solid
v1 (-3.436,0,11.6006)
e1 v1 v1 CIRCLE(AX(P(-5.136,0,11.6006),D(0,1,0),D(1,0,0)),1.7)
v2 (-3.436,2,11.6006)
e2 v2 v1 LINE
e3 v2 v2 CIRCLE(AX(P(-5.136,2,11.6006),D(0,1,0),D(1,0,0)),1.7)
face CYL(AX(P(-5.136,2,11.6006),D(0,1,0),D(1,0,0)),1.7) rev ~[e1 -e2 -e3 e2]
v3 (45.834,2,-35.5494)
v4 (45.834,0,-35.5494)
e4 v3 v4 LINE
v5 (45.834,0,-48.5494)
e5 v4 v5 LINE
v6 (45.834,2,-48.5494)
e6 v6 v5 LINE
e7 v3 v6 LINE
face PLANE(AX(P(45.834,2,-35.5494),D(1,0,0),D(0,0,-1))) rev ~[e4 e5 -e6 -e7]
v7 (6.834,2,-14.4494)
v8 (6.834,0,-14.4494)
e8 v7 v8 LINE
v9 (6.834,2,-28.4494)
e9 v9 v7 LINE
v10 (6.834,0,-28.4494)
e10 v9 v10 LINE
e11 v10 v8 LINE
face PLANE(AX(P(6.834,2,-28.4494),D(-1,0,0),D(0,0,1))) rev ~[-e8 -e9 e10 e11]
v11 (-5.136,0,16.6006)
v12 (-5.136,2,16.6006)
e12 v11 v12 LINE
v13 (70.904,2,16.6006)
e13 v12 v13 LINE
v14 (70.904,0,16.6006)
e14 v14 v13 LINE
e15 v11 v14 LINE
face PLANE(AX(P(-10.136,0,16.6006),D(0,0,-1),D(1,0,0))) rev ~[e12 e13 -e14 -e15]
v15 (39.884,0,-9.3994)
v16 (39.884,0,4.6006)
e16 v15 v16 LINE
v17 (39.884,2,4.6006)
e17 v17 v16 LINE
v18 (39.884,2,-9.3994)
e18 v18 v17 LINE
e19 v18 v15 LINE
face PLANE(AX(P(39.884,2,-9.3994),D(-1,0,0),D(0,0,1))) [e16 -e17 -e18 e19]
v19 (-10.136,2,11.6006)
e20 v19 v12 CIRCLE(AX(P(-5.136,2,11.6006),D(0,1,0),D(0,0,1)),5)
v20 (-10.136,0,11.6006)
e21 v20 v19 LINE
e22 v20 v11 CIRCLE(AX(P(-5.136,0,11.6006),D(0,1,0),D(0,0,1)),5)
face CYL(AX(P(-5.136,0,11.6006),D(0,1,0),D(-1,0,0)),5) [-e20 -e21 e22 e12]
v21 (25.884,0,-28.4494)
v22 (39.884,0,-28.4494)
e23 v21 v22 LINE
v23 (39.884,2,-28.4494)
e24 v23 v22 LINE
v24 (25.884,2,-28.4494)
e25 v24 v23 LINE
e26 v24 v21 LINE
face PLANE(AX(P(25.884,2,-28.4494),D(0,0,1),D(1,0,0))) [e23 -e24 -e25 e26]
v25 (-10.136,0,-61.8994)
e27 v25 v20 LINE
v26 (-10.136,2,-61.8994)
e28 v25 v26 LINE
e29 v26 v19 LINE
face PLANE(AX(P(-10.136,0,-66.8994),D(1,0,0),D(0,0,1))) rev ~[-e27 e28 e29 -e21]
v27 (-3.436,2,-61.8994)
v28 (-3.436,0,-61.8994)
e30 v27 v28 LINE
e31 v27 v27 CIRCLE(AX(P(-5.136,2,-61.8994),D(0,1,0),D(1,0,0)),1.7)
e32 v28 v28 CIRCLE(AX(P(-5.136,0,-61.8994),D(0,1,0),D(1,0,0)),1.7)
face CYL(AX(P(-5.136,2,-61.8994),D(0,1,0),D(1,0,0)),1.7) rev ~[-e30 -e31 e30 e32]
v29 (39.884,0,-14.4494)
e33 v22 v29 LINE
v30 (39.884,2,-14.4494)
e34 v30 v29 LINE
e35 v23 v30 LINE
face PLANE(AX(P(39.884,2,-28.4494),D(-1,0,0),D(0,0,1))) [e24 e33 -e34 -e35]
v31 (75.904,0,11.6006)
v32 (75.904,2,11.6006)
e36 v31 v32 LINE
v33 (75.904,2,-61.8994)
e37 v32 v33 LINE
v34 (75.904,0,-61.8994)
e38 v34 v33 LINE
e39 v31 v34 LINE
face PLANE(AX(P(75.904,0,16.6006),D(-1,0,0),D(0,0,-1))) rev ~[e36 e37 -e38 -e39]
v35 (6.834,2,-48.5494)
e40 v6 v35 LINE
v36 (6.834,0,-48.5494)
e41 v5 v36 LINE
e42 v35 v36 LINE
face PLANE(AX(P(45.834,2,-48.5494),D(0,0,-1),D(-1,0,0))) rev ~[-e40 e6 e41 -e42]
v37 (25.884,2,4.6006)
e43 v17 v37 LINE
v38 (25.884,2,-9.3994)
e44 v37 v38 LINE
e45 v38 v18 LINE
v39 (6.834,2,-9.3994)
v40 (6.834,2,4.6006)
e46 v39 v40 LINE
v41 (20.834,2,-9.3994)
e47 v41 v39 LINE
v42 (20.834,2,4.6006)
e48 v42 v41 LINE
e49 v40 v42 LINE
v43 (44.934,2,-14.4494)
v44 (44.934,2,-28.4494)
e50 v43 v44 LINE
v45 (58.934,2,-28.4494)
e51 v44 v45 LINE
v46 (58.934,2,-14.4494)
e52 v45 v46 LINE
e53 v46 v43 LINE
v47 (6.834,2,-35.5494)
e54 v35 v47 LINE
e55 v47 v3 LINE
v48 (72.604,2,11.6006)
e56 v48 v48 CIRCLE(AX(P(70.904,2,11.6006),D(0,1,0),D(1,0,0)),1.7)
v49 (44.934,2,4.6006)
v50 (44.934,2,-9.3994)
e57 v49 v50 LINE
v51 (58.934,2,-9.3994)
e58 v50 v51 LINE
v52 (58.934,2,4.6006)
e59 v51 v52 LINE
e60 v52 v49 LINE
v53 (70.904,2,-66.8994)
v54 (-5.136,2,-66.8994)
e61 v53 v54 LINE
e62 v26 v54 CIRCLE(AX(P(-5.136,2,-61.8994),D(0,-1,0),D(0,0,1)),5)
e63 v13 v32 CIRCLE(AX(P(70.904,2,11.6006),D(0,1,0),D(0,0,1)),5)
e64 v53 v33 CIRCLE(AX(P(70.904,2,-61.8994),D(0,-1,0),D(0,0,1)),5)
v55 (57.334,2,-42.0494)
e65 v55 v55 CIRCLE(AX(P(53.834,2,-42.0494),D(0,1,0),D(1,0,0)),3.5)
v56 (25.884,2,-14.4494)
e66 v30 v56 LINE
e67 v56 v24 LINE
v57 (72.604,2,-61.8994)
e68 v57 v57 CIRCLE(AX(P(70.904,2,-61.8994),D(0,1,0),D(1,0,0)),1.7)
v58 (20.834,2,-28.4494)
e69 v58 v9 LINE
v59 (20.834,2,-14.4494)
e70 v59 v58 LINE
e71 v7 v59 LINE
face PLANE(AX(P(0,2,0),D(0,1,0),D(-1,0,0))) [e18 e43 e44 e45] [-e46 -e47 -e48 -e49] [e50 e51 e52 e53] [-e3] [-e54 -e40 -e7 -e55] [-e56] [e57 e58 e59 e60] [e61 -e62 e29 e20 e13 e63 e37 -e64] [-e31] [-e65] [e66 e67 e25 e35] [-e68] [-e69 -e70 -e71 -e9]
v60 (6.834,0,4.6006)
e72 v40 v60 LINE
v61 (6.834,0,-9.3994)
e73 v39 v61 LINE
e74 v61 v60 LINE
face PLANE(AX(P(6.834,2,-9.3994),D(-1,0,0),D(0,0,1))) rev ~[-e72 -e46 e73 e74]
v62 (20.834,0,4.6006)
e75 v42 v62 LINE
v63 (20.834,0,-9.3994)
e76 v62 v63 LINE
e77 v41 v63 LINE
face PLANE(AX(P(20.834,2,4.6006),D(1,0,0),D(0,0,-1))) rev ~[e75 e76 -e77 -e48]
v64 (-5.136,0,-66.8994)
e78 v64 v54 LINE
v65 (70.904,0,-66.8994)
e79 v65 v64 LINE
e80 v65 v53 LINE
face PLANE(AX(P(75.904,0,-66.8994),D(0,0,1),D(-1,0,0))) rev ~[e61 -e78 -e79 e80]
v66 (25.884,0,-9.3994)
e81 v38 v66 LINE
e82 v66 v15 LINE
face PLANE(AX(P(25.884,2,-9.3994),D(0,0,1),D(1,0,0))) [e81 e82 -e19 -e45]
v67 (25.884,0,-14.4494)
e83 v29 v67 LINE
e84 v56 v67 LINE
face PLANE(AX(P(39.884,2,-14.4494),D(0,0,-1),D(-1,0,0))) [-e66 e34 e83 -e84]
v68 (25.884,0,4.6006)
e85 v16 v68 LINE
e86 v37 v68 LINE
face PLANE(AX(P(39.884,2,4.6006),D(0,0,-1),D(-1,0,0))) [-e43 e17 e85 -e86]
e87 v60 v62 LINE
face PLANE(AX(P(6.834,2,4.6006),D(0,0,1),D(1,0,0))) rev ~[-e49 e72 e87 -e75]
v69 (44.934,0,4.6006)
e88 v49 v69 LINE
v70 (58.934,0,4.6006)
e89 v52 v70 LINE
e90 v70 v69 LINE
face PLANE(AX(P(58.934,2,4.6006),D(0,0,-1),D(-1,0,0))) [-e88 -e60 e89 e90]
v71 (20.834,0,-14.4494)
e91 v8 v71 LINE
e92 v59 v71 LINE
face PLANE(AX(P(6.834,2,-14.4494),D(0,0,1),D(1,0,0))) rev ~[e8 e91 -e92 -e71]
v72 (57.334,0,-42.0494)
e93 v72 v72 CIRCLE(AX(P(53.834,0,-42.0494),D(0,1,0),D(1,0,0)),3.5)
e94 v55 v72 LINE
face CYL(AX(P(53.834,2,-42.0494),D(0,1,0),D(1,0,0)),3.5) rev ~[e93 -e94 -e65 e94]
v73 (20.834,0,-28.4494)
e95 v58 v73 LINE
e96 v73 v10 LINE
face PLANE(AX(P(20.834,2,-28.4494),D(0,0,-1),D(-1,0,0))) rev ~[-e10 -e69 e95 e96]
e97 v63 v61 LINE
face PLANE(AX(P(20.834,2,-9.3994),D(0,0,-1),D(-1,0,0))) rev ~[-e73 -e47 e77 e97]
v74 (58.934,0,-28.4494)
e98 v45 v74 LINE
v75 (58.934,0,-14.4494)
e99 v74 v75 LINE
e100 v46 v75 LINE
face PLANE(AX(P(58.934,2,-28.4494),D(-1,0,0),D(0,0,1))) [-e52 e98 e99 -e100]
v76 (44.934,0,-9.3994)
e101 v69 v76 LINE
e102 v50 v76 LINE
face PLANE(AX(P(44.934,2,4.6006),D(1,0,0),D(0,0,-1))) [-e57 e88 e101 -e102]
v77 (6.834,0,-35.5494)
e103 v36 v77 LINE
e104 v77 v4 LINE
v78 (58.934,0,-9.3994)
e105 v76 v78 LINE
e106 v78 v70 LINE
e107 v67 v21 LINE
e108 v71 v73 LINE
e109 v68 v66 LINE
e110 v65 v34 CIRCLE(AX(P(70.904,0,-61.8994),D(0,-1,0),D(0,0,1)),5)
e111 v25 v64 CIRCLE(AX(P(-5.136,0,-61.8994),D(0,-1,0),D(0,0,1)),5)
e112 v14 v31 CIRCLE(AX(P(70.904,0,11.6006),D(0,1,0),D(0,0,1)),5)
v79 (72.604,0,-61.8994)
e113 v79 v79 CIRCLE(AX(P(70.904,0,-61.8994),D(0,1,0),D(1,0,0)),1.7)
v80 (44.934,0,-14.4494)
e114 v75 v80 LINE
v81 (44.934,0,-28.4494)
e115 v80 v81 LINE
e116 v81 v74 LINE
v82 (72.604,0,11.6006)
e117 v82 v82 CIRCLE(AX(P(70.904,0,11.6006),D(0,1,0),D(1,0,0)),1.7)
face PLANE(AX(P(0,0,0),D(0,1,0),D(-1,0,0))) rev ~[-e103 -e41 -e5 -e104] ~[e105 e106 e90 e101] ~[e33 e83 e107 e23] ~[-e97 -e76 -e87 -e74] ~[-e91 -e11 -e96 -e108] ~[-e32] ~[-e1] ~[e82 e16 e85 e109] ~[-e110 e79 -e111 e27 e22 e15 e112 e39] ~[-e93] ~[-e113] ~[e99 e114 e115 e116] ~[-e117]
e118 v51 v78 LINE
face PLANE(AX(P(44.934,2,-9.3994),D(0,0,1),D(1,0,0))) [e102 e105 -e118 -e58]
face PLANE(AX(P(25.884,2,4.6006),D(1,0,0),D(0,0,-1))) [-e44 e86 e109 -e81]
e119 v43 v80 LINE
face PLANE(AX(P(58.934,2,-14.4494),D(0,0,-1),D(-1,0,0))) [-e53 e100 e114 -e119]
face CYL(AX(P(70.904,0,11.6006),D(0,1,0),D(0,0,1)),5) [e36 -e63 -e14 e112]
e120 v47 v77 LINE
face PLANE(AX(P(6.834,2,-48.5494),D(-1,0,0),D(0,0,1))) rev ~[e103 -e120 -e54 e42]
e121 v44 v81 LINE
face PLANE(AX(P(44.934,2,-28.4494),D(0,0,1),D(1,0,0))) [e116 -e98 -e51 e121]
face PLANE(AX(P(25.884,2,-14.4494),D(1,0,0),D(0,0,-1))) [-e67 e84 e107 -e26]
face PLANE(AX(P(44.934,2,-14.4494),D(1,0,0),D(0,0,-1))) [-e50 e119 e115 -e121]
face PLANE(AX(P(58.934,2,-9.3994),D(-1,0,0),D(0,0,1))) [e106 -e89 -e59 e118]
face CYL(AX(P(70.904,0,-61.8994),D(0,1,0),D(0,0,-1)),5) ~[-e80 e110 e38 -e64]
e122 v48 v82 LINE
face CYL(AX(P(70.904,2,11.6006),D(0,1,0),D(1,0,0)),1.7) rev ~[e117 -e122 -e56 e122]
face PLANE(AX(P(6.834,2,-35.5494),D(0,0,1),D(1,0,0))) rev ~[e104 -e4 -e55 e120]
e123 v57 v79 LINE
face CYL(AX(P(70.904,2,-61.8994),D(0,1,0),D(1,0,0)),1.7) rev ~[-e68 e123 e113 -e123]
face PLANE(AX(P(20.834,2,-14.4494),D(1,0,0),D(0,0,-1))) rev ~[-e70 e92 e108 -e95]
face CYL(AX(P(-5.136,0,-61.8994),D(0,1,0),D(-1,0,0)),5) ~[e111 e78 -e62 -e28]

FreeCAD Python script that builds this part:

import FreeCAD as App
import Part
import Sketcher


def edges_at(feature, points):
    """Names of the edges that pass closest to the given points."""
    edges = feature.Shape.Edges
    near = lambda p: min(range(len(edges)), key=lambda i: edges[i].distToShape(Part.Vertex(*p))[0])
    return sorted({f"Edge{near(p) + 1}" for p in points})

doc = App.newDocument("Part")
body = doc.addObject("PartDesign::Body", "Body")

# Sketch on XZ plane
sketch1 = doc.addObject("Sketcher::SketchObject", "Sketch")
body.addObject(sketch1)
sketch1.AttachmentSupport = (doc.XZ_Plane, [""])
sketch1.MapMode = "FlatFace"
sketch1.addGeometry([
    Part.LineSegment(App.Vector(-10, -67, 0), App.Vector(-10, 17, 0)),
    Part.LineSegment(App.Vector(-10, 17, 0), App.Vector(76, 17, 0)),
    Part.LineSegment(App.Vector(76, 17, 0), App.Vector(76, -67, 0)),
    Part.LineSegment(App.Vector(76, -67, 0), App.Vector(-10, -67, 0)),
], False)
sketch1.addConstraint([
    Sketcher.Constraint("Coincident", 0, 2, 1, 1),
    Sketcher.Constraint("Coincident", 1, 2, 2, 1),
    Sketcher.Constraint("Coincident", 2, 2, 3, 1),
    Sketcher.Constraint("Coincident", 3, 2, 0, 1),
    Sketcher.Constraint("Vertical", 0),
    Sketcher.Constraint("Horizontal", 1),
    Sketcher.Constraint("Vertical", 2),
    Sketcher.Constraint("Horizontal", 3),
    Sketcher.Constraint("DistanceY", 0, 1, 0, 2, 83.5),
    Sketcher.Constraint("DistanceX", 1, 1, 1, 2, 86.04),
    Sketcher.Constraint("DistanceX", 0, 2, -1, 1, 10.136),
    Sketcher.Constraint("DistanceY", -1, 1, 0, 2, 16.6006),
])
pad1 = doc.addObject("PartDesign::Pad", "Pad")
body.addObject(pad1)
pad1.Profile = sketch1
pad1.Length = 2
pad1.Reversed = True

# Sketch on XZ plane
sketch2 = doc.addObject("Sketcher::SketchObject", "Sketch001")
body.addObject(sketch2)
sketch2.AttachmentSupport = (doc.XZ_Plane, [""])
sketch2.MapMode = "FlatFace"
sketch2.AttachmentOffset = App.Placement(App.Vector(0, 0, -2), App.Rotation())
sketch2.addGeometry([
    Part.Circle(App.Vector(-5.1, 11.6, 0), App.Vector(0, 0, 1), 1.7),
    Part.Circle(App.Vector(70.9, 11.6, 0), App.Vector(0, 0, 1), 1.7),
    Part.Circle(App.Vector(70.9, -61.9, 0), App.Vector(0, 0, 1), 1.7),
    Part.Circle(App.Vector(-5.1, -61.9, 0), App.Vector(0, 0, 1), 1.7),
], False)
sketch2.addConstraint([
    Sketcher.Constraint("Equal", 0, 1),
    Sketcher.Constraint("Equal", 1, 2),
    Sketcher.Constraint("Equal", 2, 3),
    Sketcher.Constraint("Horizontal", 0, 3, 1, 3),
    Sketcher.Constraint("Horizontal", 2, 3, 3, 3),
    Sketcher.Constraint("Vertical", 1, 3, 2, 3),
    Sketcher.Constraint("Vertical", 0, 3, 3, 3),
    Sketcher.Constraint("Diameter", 0, 3.4),
    Sketcher.Constraint("DistanceY", 2, 3, 1, 3, 73.5),
    Sketcher.Constraint("DistanceX", 0, 3, 1, 3, 76.04),
    Sketcher.Constraint("DistanceX", 0, 3, -1, 1, 5.136),
    Sketcher.Constraint("DistanceY", -1, 1, 0, 3, 11.6006),
])
pocket1 = doc.addObject("PartDesign::Pocket", "Pocket")
body.addObject(pocket1)
pocket1.Profile = sketch2
pocket1.Length = 2
pocket1.Reversed = True

# Sketch on XZ plane
sketch3 = doc.addObject("Sketcher::SketchObject", "Sketch002")
body.addObject(sketch3)
sketch3.AttachmentSupport = (doc.XZ_Plane, [""])
sketch3.MapMode = "FlatFace"
sketch3.AttachmentOffset = App.Placement(App.Vector(0, 0, -2), App.Rotation())
sketch3.addGeometry([
    Part.LineSegment(App.Vector(6.8, -9.4, 0), App.Vector(6.8, 4.6, 0)),  # 0
    Part.LineSegment(App.Vector(6.8, 4.6, 0), App.Vector(20.8, 4.6, 0)),  # 1
    Part.LineSegment(App.Vector(20.8, 4.6, 0), App.Vector(20.8, -9.4, 0)),  # 2
    Part.LineSegment(App.Vector(20.8, -9.4, 0), App.Vector(6.8, -9.4, 0)),  # 3
    Part.LineSegment(App.Vector(39.9, -9.4, 0), App.Vector(25.9, -9.4, 0)),  # 4
    Part.LineSegment(App.Vector(25.9, -9.4, 0), App.Vector(25.9, 4.6, 0)),  # 5
    Part.LineSegment(App.Vector(25.9, 4.6, 0), App.Vector(39.9, 4.6, 0)),  # 6
    Part.LineSegment(App.Vector(39.9, 4.6, 0), App.Vector(39.9, -9.4, 0)),  # 7
    Part.LineSegment(App.Vector(58.9, -9.4, 0), App.Vector(44.9, -9.4, 0)),  # 8
    Part.LineSegment(App.Vector(44.9, -9.4, 0), App.Vector(44.9, 4.6, 0)),  # 9
    Part.LineSegment(App.Vector(44.9, 4.6, 0), App.Vector(58.9, 4.6, 0)),  # 10
    Part.LineSegment(App.Vector(58.9, 4.6, 0), App.Vector(58.9, -9.4, 0)),  # 11
    Part.LineSegment(App.Vector(6.8, -28.4, 0), App.Vector(6.8, -14.4, 0)),  # 12
    Part.LineSegment(App.Vector(6.8, -14.4, 0), App.Vector(20.8, -14.4, 0)),  # 13
    Part.LineSegment(App.Vector(20.8, -14.4, 0), App.Vector(20.8, -28.4, 0)),  # 14
    Part.LineSegment(App.Vector(20.8, -28.4, 0), App.Vector(6.8, -28.4, 0)),  # 15
    Part.LineSegment(App.Vector(39.9, -28.4, 0), App.Vector(25.9, -28.4, 0)),  # 16
    Part.LineSegment(App.Vector(25.9, -28.4, 0), App.Vector(25.9, -14.4, 0)),  # 17
    Part.LineSegment(App.Vector(25.9, -14.4, 0), App.Vector(39.9, -14.4, 0)),  # 18
    Part.LineSegment(App.Vector(39.9, -14.4, 0), App.Vector(39.9, -28.4, 0)),  # 19
    Part.LineSegment(App.Vector(58.9, -28.4, 0), App.Vector(44.9, -28.4, 0)),  # 20
    Part.LineSegment(App.Vector(44.9, -28.4, 0), App.Vector(44.9, -14.4, 0)),  # 21
    Part.LineSegment(App.Vector(44.9, -14.4, 0), App.Vector(58.9, -14.4, 0)),  # 22
    Part.LineSegment(App.Vector(58.9, -14.4, 0), App.Vector(58.9, -28.4, 0)),  # 23
    Part.LineSegment(App.Vector(6.8, -48.5, 0), App.Vector(6.8, -35.5, 0)),  # 24
    Part.LineSegment(App.Vector(6.8, -35.5, 0), App.Vector(45.8, -35.5, 0)),  # 25
    Part.LineSegment(App.Vector(45.8, -35.5, 0), App.Vector(45.8, -48.5, 0)),  # 26
    Part.LineSegment(App.Vector(45.8, -48.5, 0), App.Vector(6.8, -48.5, 0)),  # 27
    Part.Circle(App.Vector(53.8, -42, 0), App.Vector(0, 0, 1), 3.5),  # 28
], False)
sketch3.addConstraint([
    Sketcher.Constraint("Coincident", 0, 2, 1, 1),
    Sketcher.Constraint("Coincident", 1, 2, 2, 1),
    Sketcher.Constraint("Coincident", 2, 2, 3, 1),
    Sketcher.Constraint("Coincident", 3, 2, 0, 1),
    Sketcher.Constraint("Coincident", 4, 2, 5, 1),
    Sketcher.Constraint("Coincident", 5, 2, 6, 1),
    Sketcher.Constraint("Coincident", 6, 2, 7, 1),
    Sketcher.Constraint("Coincident", 7, 2, 4, 1),
    Sketcher.Constraint("Coincident", 8, 2, 9, 1),
    Sketcher.Constraint("Coincident", 9, 2, 10, 1),
    Sketcher.Constraint("Coincident", 10, 2, 11, 1),
    Sketcher.Constraint("Coincident", 11, 2, 8, 1),
    Sketcher.Constraint("Coincident", 12, 2, 13, 1),
    Sketcher.Constraint("Coincident", 13, 2, 14, 1),
    Sketcher.Constraint("Coincident", 14, 2, 15, 1),
    Sketcher.Constraint("Coincident", 15, 2, 12, 1),
    Sketcher.Constraint("Coincident", 16, 2, 17, 1),
    Sketcher.Constraint("Coincident", 17, 2, 18, 1),
    Sketcher.Constraint("Coincident", 18, 2, 19, 1),
    Sketcher.Constraint("Coincident", 19, 2, 16, 1),
    Sketcher.Constraint("Coincident", 20, 2, 21, 1),
    Sketcher.Constraint("Coincident", 21, 2, 22, 1),
    Sketcher.Constraint("Coincident", 22, 2, 23, 1),
    Sketcher.Constraint("Coincident", 23, 2, 20, 1),
    Sketcher.Constraint("Coincident", 24, 2, 25, 1),
    Sketcher.Constraint("Coincident", 25, 2, 26, 1),
    Sketcher.Constraint("Coincident", 26, 2, 27, 1),
    Sketcher.Constraint("Coincident", 27, 2, 24, 1),
    Sketcher.Constraint("Vertical", 0),
    Sketcher.Constraint("Horizontal", 1),
    Sketcher.Constraint("Vertical", 2),
    Sketcher.Constraint("Horizontal", 3),
    Sketcher.Constraint("Horizontal", 4),
    Sketcher.Constraint("Vertical", 5),
    Sketcher.Constraint("Horizontal", 6),
    Sketcher.Constraint("Vertical", 7),
    Sketcher.Constraint("Horizontal", 8),
    Sketcher.Constraint("Vertical", 9),
    Sketcher.Constraint("Horizontal", 10),
    Sketcher.Constraint("Vertical", 11),
    Sketcher.Constraint("Vertical", 12),
    Sketcher.Constraint("Horizontal", 13),
    Sketcher.Constraint("Vertical", 14),
    Sketcher.Constraint("Horizontal", 15),
    Sketcher.Constraint("Horizontal", 16),
    Sketcher.Constraint("Vertical", 17),
    Sketcher.Constraint("Horizontal", 18),
    Sketcher.Constraint("Vertical", 19),
    Sketcher.Constraint("Horizontal", 20),
    Sketcher.Constraint("Vertical", 21),
    Sketcher.Constraint("Horizontal", 22),
    Sketcher.Constraint("Vertical", 23),
    Sketcher.Constraint("Vertical", 24),
    Sketcher.Constraint("Horizontal", 25),
    Sketcher.Constraint("Vertical", 26),
    Sketcher.Constraint("Horizontal", 27),
    Sketcher.Constraint("Horizontal", 3, 2, 4, 2),
    Sketcher.Constraint("Horizontal", 1, 2, 5, 2),
    Sketcher.Constraint("Horizontal", 7, 2, 8, 2),
    Sketcher.Constraint("Horizontal", 6, 2, 9, 2),
    Sketcher.Constraint("Horizontal", 15, 2, 16, 2),
    Sketcher.Constraint("Horizontal", 13, 2, 17, 2),
    Sketcher.Constraint("Horizontal", 19, 2, 20, 2),
    Sketcher.Constraint("Horizontal", 18, 2, 21, 2),
    Sketcher.Constraint("Vertical", 3, 2, 12, 2),
    Sketcher.Constraint("Vertical", 2, 2, 13, 2),
    Sketcher.Constraint("Vertical", 5, 2, 16, 2),
    Sketcher.Constraint("Vertical", 7, 2, 18, 2),
    Sketcher.Constraint("Vertical", 9, 2, 20, 2),
    Sketcher.Constraint("Vertical", 11, 2, 22, 2),
    Sketcher.Constraint("Vertical", 15, 2, 24, 2),
    Sketcher.Constraint("Equal", 3, 4),
    Sketcher.Constraint("Equal", 6, 8),
    Sketcher.Constraint("Equal", 22, 0),
    Sketcher.Constraint("Equal", 11, 12),
    Sketcher.Constraint("Diameter", 28, 7.0),
    Sketcher.Constraint("DistanceX", 1, 1, 1, 2, 14.0),
    Sketcher.Constraint("DistanceX", 25, 1, 25, 2, 39.0),
    Sketcher.Constraint("DistanceY", 24, 1, 24, 2, 13.0),
    Sketcher.Constraint("DistanceX", 25, 2, 28, 3, 8.0),
    Sketcher.Constraint("DistanceY", 24, 2, 15, 2, 7.1),
    Sketcher.Constraint("DistanceX", 2, 2, 4, 2, 5.05),
    Sketcher.Constraint("DistanceX", 7, 2, 8, 2, 5.05),
    Sketcher.Constraint("DistanceY", 12, 2, 3, 2, 5.05),
    Sketcher.Constraint("DistanceY", 28, 3, 19, 2, 13.6),
    Sketcher.Constraint("DistanceX", -1, 1, 28, 3, 53.834),
    Sketcher.Constraint("DistanceY", 28, 3, -1, 1, 42.0494),
])
pocket2 = doc.addObject("PartDesign::Pocket", "Pocket001")
body.addObject(pocket2)
pocket2.Profile = sketch3
pocket2.Length = 2
pocket2.Reversed = True
doc.recompute()

fillet = doc.addObject("PartDesign::Fillet", "Fillet")
body.addObject(fillet)
fillet.Base = (pocket2, edges_at(pocket2, [
    (-10.136, 1, 16.601),
    (75.904, 1, 16.601),
    (75.904, 1, -66.899),
    (-10.136, 1, -66.899),
]))
fillet.Radius = 5

doc.recompute()
